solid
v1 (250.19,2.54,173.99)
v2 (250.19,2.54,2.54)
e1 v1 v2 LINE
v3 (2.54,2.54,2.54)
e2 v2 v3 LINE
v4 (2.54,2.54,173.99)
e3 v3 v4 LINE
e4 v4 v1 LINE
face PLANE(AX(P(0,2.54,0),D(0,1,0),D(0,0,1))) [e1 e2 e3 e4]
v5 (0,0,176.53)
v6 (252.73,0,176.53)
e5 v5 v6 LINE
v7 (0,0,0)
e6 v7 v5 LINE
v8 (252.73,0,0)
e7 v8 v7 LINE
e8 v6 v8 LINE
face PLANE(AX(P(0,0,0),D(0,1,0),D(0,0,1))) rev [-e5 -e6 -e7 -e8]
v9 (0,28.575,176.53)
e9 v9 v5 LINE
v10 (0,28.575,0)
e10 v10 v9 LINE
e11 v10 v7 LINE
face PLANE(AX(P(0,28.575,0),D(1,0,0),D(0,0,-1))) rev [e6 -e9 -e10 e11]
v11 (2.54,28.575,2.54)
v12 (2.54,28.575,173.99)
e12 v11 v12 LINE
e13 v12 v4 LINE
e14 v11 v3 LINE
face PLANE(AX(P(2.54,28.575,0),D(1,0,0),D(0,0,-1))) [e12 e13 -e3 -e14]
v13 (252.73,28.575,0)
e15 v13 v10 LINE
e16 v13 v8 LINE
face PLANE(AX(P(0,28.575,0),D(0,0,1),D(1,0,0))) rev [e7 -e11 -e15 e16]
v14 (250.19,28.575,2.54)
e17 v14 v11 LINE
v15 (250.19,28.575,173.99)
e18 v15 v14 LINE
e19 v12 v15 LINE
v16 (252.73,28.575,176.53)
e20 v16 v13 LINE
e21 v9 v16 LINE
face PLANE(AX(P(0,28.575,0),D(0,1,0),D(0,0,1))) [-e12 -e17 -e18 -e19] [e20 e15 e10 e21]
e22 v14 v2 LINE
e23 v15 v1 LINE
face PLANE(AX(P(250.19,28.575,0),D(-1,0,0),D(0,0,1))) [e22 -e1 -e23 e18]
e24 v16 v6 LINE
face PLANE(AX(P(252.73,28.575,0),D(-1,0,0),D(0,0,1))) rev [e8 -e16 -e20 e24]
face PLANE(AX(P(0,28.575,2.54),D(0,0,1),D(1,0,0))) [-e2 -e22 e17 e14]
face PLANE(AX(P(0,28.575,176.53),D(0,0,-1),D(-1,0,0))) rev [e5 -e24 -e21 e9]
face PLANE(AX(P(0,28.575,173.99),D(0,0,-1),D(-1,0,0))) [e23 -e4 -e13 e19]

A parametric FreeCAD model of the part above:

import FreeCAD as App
import Part
import Sketcher
Q = App.Units.Quantity


def faces_at(feature, points):
    """Names of the faces that lie closest to the given points."""
    faces = feature.Shape.Faces
    near = lambda p: min(range(len(faces)), key=lambda i: faces[i].distToShape(Part.Vertex(*p))[0])
    return sorted({f"Face{near(p) + 1}" for p in points})


def add_polygon(sketch, points):
    """Adds a closed chain of lines whose ends are joined by coincident constraints."""
    first, n = sketch.GeometryCount, len(points)
    for a, b in zip(points, points[1:] + points[:1]):
        sketch.addGeometry(Part.LineSegment(App.Vector(*a, 0), App.Vector(*b, 0)), False)
    for i in range(n):
        sketch.addConstraint(Sketcher.Constraint("Coincident", first + i, 2, first + (i + 1) % n, 1))

doc = App.newDocument("Part")
params = doc.addObject("Spreadsheet::Sheet", "Params")
for row, (alias, value) in enumerate([
    ("sketch1_width", "9.95 in"),
    ("sketch1_height", "6.95 in"),
    ("pad1_length", "1.125 in"),
    ("thickness_wall", "0.1 in"),
], start=1):
    params.set(f"A{row}", alias)
    params.set(f"B{row}", "=" + value)
    params.setAlias(f"B{row}", alias)

body = doc.addObject("PartDesign::Body", "Body")

# Sketch on XZ plane
sketch1 = doc.addObject("Sketcher::SketchObject", "Sketch")
body.addObject(sketch1)
sketch1.AttachmentSupport = (doc.XZ_Plane, [""])
sketch1.MapMode = "FlatFace"
add_polygon(sketch1, [(0, 0), (0, 177), (253, 177), (253, 0)])  # lines 0-3
sketch1.addConstraint(Sketcher.Constraint("Vertical", 0))
sketch1.addConstraint(Sketcher.Constraint("Horizontal", 1))
sketch1.addConstraint(Sketcher.Constraint("Vertical", 2))
sketch1.addConstraint(Sketcher.Constraint("Horizontal", 3))
sketch1.addConstraint(Sketcher.Constraint("Coincident", 3, 2, -1, 1))
sketch1.addConstraint(Sketcher.Constraint("DistanceX", 1, 1, 1, 2, Q("9.95 in")))
sketch1.addConstraint(Sketcher.Constraint("DistanceY", 0, 1, 0, 2, Q("6.95 in")))
sketch1.setExpression("Constraints[9]", "Params.sketch1_width")
sketch1.setExpression("Constraints[10]", "Params.sketch1_height")
pad1 = doc.addObject("PartDesign::Pad", "Pad")
body.addObject(pad1)
pad1.Profile = sketch1
pad1.setExpression("Length", "Params.pad1_length")
pad1.Reversed = True
doc.recompute()

thickness = doc.addObject("PartDesign::Thickness", "Thickness")
body.addObject(thickness)
thickness.Base = (pad1, faces_at(pad1, [(126.365, 28.575, 88.265)]))
thickness.setExpression("Value", "Params.thickness_wall")
thickness.Reversed = True
thickness.Join = "Intersection"

doc.recompute()
